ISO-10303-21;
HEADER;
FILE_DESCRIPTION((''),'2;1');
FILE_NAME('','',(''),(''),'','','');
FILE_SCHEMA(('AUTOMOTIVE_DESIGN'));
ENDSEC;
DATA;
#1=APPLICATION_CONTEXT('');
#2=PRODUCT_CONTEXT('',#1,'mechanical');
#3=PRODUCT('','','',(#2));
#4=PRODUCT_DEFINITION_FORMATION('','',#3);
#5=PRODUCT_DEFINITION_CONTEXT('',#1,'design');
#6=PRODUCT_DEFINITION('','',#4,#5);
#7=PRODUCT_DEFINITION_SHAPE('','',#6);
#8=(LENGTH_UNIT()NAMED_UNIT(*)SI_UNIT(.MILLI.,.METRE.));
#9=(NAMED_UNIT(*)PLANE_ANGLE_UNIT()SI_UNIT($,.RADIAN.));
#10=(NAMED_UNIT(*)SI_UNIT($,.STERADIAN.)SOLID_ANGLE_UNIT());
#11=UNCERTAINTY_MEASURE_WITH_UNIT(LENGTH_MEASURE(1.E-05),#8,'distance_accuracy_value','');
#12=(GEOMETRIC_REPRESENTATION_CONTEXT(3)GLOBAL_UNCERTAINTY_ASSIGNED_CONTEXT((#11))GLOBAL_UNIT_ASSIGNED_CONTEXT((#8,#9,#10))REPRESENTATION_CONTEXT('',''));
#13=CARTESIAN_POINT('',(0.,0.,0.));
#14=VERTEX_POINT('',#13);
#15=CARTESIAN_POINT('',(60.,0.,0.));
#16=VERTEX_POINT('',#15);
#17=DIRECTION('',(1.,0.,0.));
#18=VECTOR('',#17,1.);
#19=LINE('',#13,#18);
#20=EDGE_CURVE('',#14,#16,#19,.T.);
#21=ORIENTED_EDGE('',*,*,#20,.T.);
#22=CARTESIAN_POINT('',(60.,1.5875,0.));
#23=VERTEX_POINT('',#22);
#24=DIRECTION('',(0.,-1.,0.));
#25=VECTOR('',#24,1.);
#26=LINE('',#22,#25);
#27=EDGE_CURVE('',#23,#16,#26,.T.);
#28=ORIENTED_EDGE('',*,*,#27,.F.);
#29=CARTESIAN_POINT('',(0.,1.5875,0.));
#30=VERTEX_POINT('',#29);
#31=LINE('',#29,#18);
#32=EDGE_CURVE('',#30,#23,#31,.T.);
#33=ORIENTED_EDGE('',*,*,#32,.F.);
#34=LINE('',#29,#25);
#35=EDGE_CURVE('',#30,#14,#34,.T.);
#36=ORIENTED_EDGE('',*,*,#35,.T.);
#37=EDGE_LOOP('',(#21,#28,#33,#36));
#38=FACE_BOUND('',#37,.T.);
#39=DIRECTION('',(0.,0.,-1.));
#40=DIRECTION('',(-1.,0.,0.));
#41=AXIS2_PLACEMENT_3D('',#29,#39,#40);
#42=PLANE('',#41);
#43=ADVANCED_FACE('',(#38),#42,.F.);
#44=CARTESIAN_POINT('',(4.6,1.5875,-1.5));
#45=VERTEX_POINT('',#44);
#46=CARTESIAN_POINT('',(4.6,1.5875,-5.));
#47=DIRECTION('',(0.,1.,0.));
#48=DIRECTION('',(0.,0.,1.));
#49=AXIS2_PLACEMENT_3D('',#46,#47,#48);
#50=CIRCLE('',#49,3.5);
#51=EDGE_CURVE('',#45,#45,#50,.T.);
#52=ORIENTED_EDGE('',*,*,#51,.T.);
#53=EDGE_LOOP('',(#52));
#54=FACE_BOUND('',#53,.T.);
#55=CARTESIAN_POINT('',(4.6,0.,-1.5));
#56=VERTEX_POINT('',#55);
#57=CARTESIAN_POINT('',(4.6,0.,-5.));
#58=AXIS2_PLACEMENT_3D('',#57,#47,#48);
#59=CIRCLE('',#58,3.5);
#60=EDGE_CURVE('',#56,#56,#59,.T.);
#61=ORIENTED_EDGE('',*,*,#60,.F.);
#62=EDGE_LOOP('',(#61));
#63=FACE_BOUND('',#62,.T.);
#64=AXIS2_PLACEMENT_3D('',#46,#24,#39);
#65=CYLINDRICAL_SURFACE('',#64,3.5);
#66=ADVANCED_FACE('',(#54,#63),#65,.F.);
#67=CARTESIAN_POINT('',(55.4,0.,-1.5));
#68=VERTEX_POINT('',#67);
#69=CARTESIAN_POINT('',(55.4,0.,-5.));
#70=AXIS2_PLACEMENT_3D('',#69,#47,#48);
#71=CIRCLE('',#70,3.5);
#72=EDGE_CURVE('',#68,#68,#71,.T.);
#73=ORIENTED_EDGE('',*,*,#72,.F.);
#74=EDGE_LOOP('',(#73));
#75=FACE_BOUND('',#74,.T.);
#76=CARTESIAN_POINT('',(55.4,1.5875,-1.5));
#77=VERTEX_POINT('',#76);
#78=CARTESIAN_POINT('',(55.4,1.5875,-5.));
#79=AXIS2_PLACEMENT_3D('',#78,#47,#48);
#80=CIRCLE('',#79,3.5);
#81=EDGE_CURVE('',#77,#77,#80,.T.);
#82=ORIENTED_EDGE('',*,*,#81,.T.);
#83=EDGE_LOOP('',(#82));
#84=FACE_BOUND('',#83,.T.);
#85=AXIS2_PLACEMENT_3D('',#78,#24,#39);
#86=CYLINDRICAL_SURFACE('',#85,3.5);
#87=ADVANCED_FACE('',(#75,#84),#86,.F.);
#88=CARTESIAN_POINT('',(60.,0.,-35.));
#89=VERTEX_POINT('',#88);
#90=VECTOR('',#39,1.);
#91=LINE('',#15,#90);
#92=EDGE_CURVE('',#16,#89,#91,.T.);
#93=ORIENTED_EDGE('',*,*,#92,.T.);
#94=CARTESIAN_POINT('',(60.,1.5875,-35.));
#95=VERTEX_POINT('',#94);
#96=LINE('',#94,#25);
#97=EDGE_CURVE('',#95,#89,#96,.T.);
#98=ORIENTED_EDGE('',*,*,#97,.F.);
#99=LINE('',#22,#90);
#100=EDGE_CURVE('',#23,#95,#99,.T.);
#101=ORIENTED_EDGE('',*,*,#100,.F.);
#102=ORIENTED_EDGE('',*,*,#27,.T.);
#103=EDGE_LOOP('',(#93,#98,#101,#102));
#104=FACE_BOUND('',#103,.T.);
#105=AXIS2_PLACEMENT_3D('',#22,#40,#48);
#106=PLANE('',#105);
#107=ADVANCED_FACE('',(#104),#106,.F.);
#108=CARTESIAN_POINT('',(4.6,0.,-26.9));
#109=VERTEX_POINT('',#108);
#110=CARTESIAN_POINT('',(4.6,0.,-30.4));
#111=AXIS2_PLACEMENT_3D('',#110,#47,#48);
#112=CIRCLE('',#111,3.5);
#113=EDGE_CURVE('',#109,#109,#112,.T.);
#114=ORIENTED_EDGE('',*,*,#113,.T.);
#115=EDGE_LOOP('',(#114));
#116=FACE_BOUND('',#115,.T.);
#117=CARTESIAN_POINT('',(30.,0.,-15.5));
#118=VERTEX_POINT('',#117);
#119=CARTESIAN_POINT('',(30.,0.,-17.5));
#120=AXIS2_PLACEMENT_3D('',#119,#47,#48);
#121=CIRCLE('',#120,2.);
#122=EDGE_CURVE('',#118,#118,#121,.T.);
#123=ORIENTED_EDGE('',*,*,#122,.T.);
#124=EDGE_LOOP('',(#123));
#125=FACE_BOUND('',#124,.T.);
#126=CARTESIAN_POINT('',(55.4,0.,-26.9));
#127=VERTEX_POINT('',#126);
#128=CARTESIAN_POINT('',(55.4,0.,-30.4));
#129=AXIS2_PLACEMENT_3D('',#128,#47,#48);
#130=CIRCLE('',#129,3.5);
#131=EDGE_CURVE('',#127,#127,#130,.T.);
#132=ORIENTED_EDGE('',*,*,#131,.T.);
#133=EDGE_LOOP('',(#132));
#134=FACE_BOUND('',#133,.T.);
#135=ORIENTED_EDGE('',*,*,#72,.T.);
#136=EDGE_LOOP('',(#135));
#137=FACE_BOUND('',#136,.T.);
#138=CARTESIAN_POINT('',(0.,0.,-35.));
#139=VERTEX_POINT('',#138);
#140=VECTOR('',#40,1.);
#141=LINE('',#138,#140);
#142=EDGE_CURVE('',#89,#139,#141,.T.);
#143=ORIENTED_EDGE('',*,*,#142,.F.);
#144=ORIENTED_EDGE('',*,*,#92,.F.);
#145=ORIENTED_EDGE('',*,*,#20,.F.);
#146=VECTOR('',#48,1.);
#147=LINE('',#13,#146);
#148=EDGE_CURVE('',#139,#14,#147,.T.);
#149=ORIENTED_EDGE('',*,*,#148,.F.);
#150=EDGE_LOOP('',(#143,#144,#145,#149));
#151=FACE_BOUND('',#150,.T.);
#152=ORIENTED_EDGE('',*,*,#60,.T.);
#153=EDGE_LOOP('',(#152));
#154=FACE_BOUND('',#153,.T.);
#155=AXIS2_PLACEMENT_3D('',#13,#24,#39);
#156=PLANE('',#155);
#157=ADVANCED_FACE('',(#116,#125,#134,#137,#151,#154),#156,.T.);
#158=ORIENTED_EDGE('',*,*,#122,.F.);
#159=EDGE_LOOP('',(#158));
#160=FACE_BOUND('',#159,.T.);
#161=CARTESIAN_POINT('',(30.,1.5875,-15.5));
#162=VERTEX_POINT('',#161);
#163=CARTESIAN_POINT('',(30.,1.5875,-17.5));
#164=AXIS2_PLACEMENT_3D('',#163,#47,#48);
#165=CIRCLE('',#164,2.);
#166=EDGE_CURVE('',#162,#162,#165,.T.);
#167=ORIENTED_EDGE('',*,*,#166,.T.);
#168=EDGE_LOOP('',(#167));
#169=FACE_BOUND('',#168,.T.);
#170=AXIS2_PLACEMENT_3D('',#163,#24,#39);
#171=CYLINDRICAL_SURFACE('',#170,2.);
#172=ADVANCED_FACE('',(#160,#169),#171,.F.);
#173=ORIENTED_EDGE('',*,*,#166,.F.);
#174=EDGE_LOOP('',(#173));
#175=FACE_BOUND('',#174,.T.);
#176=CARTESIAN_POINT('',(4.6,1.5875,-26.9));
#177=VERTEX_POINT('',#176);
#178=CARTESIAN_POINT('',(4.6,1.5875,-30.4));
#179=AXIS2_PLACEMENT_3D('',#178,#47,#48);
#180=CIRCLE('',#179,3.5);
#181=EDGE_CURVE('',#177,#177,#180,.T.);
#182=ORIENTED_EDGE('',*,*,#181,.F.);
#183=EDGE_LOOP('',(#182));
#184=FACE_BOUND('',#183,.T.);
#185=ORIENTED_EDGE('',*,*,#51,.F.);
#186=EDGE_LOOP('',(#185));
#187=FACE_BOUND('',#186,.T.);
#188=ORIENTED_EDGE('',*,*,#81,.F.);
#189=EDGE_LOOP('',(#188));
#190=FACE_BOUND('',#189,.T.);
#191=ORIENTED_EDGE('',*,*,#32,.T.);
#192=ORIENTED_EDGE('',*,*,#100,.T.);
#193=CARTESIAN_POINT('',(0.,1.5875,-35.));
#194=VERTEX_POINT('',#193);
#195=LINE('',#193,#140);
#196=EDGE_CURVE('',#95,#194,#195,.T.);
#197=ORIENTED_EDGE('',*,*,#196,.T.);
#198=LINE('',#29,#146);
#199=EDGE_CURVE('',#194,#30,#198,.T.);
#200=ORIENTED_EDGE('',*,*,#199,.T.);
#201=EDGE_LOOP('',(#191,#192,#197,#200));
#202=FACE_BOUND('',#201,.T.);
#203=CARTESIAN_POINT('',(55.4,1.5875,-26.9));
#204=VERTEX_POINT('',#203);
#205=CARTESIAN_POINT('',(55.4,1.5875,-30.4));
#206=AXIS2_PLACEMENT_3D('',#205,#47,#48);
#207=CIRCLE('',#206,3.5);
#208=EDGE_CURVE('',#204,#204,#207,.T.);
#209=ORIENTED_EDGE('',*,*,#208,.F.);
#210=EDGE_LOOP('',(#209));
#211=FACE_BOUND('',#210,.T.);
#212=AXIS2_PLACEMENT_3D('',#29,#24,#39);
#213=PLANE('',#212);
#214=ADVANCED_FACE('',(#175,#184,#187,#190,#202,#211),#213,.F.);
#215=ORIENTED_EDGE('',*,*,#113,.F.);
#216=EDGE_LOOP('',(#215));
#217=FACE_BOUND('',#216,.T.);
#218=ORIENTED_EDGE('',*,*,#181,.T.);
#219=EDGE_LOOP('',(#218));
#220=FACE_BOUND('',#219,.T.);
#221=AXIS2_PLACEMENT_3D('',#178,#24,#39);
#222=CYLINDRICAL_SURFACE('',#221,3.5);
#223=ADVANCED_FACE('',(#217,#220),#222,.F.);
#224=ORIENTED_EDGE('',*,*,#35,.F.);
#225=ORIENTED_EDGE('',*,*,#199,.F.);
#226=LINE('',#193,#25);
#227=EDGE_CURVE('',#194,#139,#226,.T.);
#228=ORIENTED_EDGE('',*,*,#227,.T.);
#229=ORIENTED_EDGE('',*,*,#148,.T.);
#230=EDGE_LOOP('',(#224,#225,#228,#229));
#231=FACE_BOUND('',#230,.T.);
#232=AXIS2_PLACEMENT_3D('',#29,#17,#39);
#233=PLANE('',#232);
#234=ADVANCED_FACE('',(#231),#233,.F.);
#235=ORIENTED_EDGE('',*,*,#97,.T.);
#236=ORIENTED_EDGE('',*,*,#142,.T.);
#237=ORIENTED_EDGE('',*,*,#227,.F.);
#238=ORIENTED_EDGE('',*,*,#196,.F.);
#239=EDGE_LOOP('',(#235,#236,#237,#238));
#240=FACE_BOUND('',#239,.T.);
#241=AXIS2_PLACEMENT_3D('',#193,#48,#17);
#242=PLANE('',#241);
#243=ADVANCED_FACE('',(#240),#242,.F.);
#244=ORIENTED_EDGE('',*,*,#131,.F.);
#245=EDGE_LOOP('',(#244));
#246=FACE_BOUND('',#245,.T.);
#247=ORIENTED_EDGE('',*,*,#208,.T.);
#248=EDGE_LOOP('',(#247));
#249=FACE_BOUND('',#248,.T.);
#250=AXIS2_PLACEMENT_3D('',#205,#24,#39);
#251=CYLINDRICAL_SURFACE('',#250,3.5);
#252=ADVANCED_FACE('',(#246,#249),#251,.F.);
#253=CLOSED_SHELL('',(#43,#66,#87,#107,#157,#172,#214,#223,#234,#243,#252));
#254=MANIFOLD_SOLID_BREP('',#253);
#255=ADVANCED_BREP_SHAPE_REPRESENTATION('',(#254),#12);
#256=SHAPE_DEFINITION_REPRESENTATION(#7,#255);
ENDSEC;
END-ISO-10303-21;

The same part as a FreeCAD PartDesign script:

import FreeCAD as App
import Part
import Sketcher

V = App.Vector

doc = App.newDocument("Part")
body = doc.addObject("PartDesign::Body", "Body")

sketch1 = body.newObject("Sketcher::SketchObject", "Sketch")
sketch1.AttachmentSupport = (doc.getObject("XZ_Plane"), [""])
sketch1.MapMode = "FlatFace"
sketch1.addGeometry([
    Part.LineSegment(V(0, -35, 0), V(0, 0, 0)),
    Part.LineSegment(V(0, 0, 0), V(60, 0, 0)),
    Part.LineSegment(V(60, 0, 0), V(60, -35, 0)),
    Part.LineSegment(V(60, -35, 0), V(0, -35, 0)),
    Part.Circle(V(4.6, -5, 0), V(0, 0, 1), 3.5),
    Part.Circle(V(55.4, -5, 0), V(0, 0, 1), 3.5),
    Part.Circle(V(30, -17.5, 0), V(0, 0, 1), 2),
    Part.Circle(V(4.6, -30.4, 0), V(0, 0, 1), 3.5),
    Part.Circle(V(55.4, -30.4, 0), V(0, 0, 1), 3.5),
], False)
sketch1.addConstraint([
    Sketcher.Constraint("Coincident", 0, 2, 1, 1),
    Sketcher.Constraint("Coincident", 1, 2, 2, 1),
    Sketcher.Constraint("Coincident", 2, 2, 3, 1),
    Sketcher.Constraint("Coincident", 3, 2, 0, 1),
    Sketcher.Constraint("Vertical", 0),
    Sketcher.Constraint("Horizontal", 1),
    Sketcher.Constraint("Vertical", 2),
    Sketcher.Constraint("Horizontal", 3),
    Sketcher.Constraint("Coincident", 0, 2, -1, 1),
    Sketcher.Constraint("Equal", 4, 5),
    Sketcher.Constraint("Equal", 5, 7),
    Sketcher.Constraint("Equal", 7, 8),
    Sketcher.Constraint("Horizontal", 4, 3, 5, 3),
    Sketcher.Constraint("Horizontal", 7, 3, 8, 3),
    Sketcher.Constraint("Vertical", 4, 3, 7, 3),
    Sketcher.Constraint("Vertical", 5, 3, 8, 3),
    Sketcher.Constraint("Diameter", 4, 7.0),
    Sketcher.Constraint("Diameter", 6, 4.0),
    Sketcher.Constraint("DistanceX", 1, 1, 1, 2, 60.0),
    Sketcher.Constraint("DistanceY", 0, 1, 0, 2, 35.0),
    Sketcher.Constraint("DistanceY", 4, 3, -1, 1, 5.0),
    Sketcher.Constraint("DistanceX", -1, 1, 6, 3, 30.0),
    Sketcher.Constraint("DistanceX", -1, 1, 4, 3, 4.6),
    Sketcher.Constraint("DistanceX", -1, 1, 5, 3, 55.4),
    Sketcher.Constraint("DistanceY", 6, 3, -1, 1, 17.5),
    Sketcher.Constraint("DistanceY", 7, 3, -1, 1, 30.4),
])
pad1 = body.newObject("PartDesign::Pad", "Pad")
pad1.Profile = sketch1
pad1.Length = 1.5875
pad1.Reversed = True

doc.recompute()
